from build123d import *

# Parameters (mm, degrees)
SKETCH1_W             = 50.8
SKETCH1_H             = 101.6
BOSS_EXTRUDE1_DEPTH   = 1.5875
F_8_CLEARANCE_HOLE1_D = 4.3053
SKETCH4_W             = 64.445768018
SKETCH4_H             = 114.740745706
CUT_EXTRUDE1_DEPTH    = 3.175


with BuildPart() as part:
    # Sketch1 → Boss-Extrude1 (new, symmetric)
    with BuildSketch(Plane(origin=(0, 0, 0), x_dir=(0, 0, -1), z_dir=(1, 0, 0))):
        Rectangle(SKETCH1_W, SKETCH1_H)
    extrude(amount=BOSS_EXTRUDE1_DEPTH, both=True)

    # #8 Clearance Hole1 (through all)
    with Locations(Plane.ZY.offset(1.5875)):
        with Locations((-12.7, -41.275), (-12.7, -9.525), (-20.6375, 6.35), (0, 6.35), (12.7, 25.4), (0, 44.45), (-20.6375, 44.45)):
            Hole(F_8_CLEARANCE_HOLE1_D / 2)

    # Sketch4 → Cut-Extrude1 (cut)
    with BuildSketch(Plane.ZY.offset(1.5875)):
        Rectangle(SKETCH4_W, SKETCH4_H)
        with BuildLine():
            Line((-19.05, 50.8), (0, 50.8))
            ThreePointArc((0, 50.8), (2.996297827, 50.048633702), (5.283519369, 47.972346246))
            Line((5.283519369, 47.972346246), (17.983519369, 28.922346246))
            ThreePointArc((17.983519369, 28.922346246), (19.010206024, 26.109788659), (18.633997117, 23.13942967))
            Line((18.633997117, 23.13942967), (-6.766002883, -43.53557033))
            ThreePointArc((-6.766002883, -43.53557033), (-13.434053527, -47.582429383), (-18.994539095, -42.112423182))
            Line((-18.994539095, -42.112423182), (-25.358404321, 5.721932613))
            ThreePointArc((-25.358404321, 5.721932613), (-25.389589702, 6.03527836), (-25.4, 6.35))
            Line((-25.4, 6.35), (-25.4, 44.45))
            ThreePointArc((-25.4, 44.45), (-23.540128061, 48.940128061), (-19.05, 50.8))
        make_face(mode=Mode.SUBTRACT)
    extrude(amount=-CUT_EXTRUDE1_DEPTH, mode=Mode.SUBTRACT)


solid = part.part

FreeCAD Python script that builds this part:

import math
import FreeCAD as App
import Part
import Sketcher
from FreeCAD import Vector
Q = App.Units.Quantity


def add_polygon(sketch, points):
    """Adds a closed chain of lines whose ends are joined by coincident constraints."""
    first, n = sketch.GeometryCount, len(points)
    for a, b in zip(points, points[1:] + points[:1]):
        sketch.addGeometry(Part.LineSegment(App.Vector(*a, 0), App.Vector(*b, 0)), False)
    for i in range(n):
        sketch.addConstraint(Sketcher.Constraint("Coincident", first + i, 2, first + (i + 1) % n, 1))

doc = App.newDocument("Part")
body = doc.addObject("PartDesign::Body", "Body")

# Sketch on YZ plane
sketch1 = body.newObject("Sketcher::SketchObject", "Sketch")
sketch1.AttachmentSupport = (doc.getObject("YZ_Plane"), [""])
sketch1.MapMode = "FlatFace"
add_polygon(sketch1, [(51, 25), (-51, 25), (-51, -25), (51, -25)])  # lines 0-3
sketch1.addConstraint([
    Sketcher.Constraint("Horizontal", 0),
    Sketcher.Constraint("Vertical", 1),
    Sketcher.Constraint("Horizontal", 2),
    Sketcher.Constraint("Vertical", 3),
    Sketcher.Constraint("Symmetric", 0, 2, 2, 2, -1, 1),
    Sketcher.Constraint("DistanceX", 0, 2, 0, 1, Q("4 in")),
    Sketcher.Constraint("DistanceY", 1, 2, 1, 1, Q("2 in")),
])
pad1 = body.newObject("PartDesign::Pad", "Pad")
pad1.Profile = sketch1
pad1.Length = Q("0.125 in")
pad1.Midplane = True

# Sketch on YZ plane
sketch2 = body.newObject("Sketcher::SketchObject", "Sketch001")
sketch2.AttachmentSupport = (doc.getObject("YZ_Plane"), [""])
sketch2.MapMode = "FlatFace"
sketch2.AttachmentOffset = App.Placement(Vector(0, 0, -0.0625 * 25.4), App.Rotation())
sketch2.addGeometry([
    Part.Circle(Vector(-41.3, -12.7, 0), Vector(0, 0, 1), 2.2),  # 0
    Part.Circle(Vector(-9.5, -12.7, 0), Vector(0, 0, 1), 2.2),  # 1
    Part.Circle(Vector(6.3, -20.6, 0), Vector(0, 0, 1), 2.2),  # 2
    Part.Circle(Vector(6.3, 0, 0), Vector(0, 0, 1), 2.2),  # 3
    Part.Circle(Vector(25.4, 12.7, 0), Vector(0, 0, 1), 2.2),  # 4
    Part.Circle(Vector(44.5, 0, 0), Vector(0, 0, 1), 2.2),  # 5
    Part.Circle(Vector(44.5, -20.6, 0), Vector(0, 0, 1), 2.2),  # 6
], False)
sketch2.addConstraint([
    Sketcher.Constraint("Equal", 0, 1),
    Sketcher.Constraint("Equal", 1, 2),
    Sketcher.Constraint("Equal", 2, 3),
    Sketcher.Constraint("Equal", 3, 4),
    Sketcher.Constraint("Equal", 4, 5),
    Sketcher.Constraint("Equal", 5, 6),
    Sketcher.Constraint("PointOnObject", 3, 3, -1),
    Sketcher.Constraint("PointOnObject", 5, 3, -1),
    Sketcher.Constraint("Horizontal", 0, 3, 1, 3),
    Sketcher.Constraint("Horizontal", 2, 3, 6, 3),
    Sketcher.Constraint("Vertical", 2, 3, 3, 3),
    Sketcher.Constraint("Vertical", 5, 3, 6, 3),
    Sketcher.Constraint("DistanceX", -1, 1, 4, 3, Q("1 in")),
    Sketcher.Constraint("DistanceY", 1, 3, 4, 3, Q("1 in")),
    Sketcher.Constraint("Diameter", 0, Q("0.1695 in")),
    Sketcher.Constraint("DistanceY", 0, 3, -1, 1, Q("0.5 in")),
    Sketcher.Constraint("DistanceX", 3, 3, 5, 3, Q("1.5 in")),
    Sketcher.Constraint("DistanceX", -1, 1, 2, 3, Q("0.25 in")),
    Sketcher.Constraint("DistanceX", 0, 3, 1, 3, Q("1.25 in")),
    Sketcher.Constraint("DistanceX", 0, 3, -1, 1, Q("1.625 in")),
    Sketcher.Constraint("DistanceY", 2, 3, -1, 1, Q("0.8125 in")),
])
doc.recompute()
hole = body.newObject("PartDesign::Hole", "Hole")
hole.Profile = sketch2
hole.ThreadType = "None"
hole.Diameter = Q("0.1695 in")
hole.DepthType = "ThroughAll"
hole.Reversed = True

# Sketch on YZ plane
sketch3 = body.newObject("Sketcher::SketchObject", "Sketch002")
sketch3.AttachmentSupport = (doc.getObject("YZ_Plane"), [""])
sketch3.MapMode = "FlatFace"
sketch3.AttachmentOffset = App.Placement(Vector(0, 0, -0.0625 * 25.4), App.Rotation())
add_polygon(sketch3, [(57.4, -32.2), (-57.4, -32.2), (-57.4, 32.2), (57.4, 32.2)])  # lines 0-3
sketch3.addGeometry(Part.ArcOfCircle(Part.Circle(Vector(44.5, -19.1, 0), Vector(0, 0, 1), 6.3), math.radians(-90), math.radians(0)), False)  # 4
sketch3.addGeometry(Part.LineSegment(Vector(50.8, -19.1, 0), Vector(50.8, 0, 0)), False)  # 5
sketch3.addGeometry(Part.ArcOfCircle(Part.Circle(Vector(44.4, 0, 0), Vector(0, 0, 1), 6.4), math.radians(0), math.radians(56)), False)  # 6
sketch3.addGeometry(Part.LineSegment(Vector(48, 5.3, 0), Vector(28.9, 18, 0)), False)  # 7
sketch3.addGeometry(Part.ArcOfCircle(Part.Circle(Vector(25.4, 12.7, 0), Vector(0, 0, 1), 6.3), math.radians(56), math.radians(111)), False)  # 8
sketch3.addGeometry(Part.LineSegment(Vector(23.1, 18.6, 0), Vector(-43.5, -6.8, 0)), False)  # 9
sketch3.addGeometry(Part.ArcOfCircle(Part.Circle(Vector(-41.3, -12.7, 0), Vector(0, 0, 1), 6.3), math.radians(111), math.radians(262)), False)  # 10
sketch3.addGeometry(Part.LineSegment(Vector(-42.1, -19, 0), Vector(5.7, -25.4, 0)), False)  # 11
sketch3.addGeometry(Part.ArcOfCircle(Part.Circle(Vector(6.4, -20.6, 0), Vector(0, 0, 1), 4.8), math.radians(-97.58), math.radians(-90)), False)  # 12
sketch3.addGeometry(Part.LineSegment(Vector(6.3, -25.4, 0), Vector(44.5, -25.4, 0)), False)  # 13
sketch3.addConstraint([
    Sketcher.Constraint("Tangent", 4, 2, 5, 1),
    Sketcher.Constraint("Tangent", 5, 2, 6, 1),
    Sketcher.Constraint("Tangent", 6, 2, 7, 1),
    Sketcher.Constraint("Tangent", 7, 2, 8, 1),
    Sketcher.Constraint("Tangent", 8, 2, 9, 1),
    Sketcher.Constraint("Tangent", 9, 2, 10, 1),
    Sketcher.Constraint("Tangent", 10, 2, 11, 1),
    Sketcher.Constraint("Tangent", 11, 2, 12, 1),
    Sketcher.Constraint("Tangent", 12, 2, 13, 1),
    Sketcher.Constraint("Tangent", 13, 2, 4, 1),
    Sketcher.Constraint("Horizontal", 0),
    Sketcher.Constraint("Vertical", 1),
    Sketcher.Constraint("Horizontal", 2),
    Sketcher.Constraint("Vertical", 3),
    Sketcher.Constraint("Vertical", 5),
    Sketcher.Constraint("Horizontal", 13),
    Sketcher.Constraint("Equal", 4, 6),
    Sketcher.Constraint("Equal", 6, 8),
    Sketcher.Constraint("Equal", 8, 10),
    Sketcher.Constraint("Symmetric", 0, 2, 2, 2, -1, 1),
    Sketcher.Constraint("PointOnObject", 6, 3, -1),
    Sketcher.Constraint("Radius", 4, Q("0.25 in")),
    Sketcher.Constraint("DistanceX", 13, 1, 13, 2, Q("1.5 in")),
    Sketcher.Constraint("DistanceX", -1, 1, 8, 3, Q("1 in")),
    Sketcher.Constraint("DistanceX", -1, 1, 4, 2, Q("2 in")),
    Sketcher.Constraint("DistanceY", 12, 2, -1, 1, Q("1 in")),
    Sketcher.Constraint("Radius", 12, Q("0.1875 in")),
    Sketcher.Constraint("DistanceY", 10, 3, 8, 3, Q("1 in")),
    Sketcher.Constraint("DistanceY", -1, 1, 8, 3, Q("0.5 in")),
    Sketcher.Constraint("DistanceX", 10, 3, -1, 1, Q("1.625 in")),
    Sketcher.Constraint("DistanceY", 1, 1, 1, 2, Q("64.445768 mm")),
    Sketcher.Constraint("DistanceX", 0, 2, 0, 1, Q("114.740746 mm")),
])
pocket1 = body.newObject("PartDesign::Pocket", "Pocket")
pocket1.Profile = sketch3
pocket1.Length = Q("0.125 in")
pocket1.Reversed = True

doc.recompute()
